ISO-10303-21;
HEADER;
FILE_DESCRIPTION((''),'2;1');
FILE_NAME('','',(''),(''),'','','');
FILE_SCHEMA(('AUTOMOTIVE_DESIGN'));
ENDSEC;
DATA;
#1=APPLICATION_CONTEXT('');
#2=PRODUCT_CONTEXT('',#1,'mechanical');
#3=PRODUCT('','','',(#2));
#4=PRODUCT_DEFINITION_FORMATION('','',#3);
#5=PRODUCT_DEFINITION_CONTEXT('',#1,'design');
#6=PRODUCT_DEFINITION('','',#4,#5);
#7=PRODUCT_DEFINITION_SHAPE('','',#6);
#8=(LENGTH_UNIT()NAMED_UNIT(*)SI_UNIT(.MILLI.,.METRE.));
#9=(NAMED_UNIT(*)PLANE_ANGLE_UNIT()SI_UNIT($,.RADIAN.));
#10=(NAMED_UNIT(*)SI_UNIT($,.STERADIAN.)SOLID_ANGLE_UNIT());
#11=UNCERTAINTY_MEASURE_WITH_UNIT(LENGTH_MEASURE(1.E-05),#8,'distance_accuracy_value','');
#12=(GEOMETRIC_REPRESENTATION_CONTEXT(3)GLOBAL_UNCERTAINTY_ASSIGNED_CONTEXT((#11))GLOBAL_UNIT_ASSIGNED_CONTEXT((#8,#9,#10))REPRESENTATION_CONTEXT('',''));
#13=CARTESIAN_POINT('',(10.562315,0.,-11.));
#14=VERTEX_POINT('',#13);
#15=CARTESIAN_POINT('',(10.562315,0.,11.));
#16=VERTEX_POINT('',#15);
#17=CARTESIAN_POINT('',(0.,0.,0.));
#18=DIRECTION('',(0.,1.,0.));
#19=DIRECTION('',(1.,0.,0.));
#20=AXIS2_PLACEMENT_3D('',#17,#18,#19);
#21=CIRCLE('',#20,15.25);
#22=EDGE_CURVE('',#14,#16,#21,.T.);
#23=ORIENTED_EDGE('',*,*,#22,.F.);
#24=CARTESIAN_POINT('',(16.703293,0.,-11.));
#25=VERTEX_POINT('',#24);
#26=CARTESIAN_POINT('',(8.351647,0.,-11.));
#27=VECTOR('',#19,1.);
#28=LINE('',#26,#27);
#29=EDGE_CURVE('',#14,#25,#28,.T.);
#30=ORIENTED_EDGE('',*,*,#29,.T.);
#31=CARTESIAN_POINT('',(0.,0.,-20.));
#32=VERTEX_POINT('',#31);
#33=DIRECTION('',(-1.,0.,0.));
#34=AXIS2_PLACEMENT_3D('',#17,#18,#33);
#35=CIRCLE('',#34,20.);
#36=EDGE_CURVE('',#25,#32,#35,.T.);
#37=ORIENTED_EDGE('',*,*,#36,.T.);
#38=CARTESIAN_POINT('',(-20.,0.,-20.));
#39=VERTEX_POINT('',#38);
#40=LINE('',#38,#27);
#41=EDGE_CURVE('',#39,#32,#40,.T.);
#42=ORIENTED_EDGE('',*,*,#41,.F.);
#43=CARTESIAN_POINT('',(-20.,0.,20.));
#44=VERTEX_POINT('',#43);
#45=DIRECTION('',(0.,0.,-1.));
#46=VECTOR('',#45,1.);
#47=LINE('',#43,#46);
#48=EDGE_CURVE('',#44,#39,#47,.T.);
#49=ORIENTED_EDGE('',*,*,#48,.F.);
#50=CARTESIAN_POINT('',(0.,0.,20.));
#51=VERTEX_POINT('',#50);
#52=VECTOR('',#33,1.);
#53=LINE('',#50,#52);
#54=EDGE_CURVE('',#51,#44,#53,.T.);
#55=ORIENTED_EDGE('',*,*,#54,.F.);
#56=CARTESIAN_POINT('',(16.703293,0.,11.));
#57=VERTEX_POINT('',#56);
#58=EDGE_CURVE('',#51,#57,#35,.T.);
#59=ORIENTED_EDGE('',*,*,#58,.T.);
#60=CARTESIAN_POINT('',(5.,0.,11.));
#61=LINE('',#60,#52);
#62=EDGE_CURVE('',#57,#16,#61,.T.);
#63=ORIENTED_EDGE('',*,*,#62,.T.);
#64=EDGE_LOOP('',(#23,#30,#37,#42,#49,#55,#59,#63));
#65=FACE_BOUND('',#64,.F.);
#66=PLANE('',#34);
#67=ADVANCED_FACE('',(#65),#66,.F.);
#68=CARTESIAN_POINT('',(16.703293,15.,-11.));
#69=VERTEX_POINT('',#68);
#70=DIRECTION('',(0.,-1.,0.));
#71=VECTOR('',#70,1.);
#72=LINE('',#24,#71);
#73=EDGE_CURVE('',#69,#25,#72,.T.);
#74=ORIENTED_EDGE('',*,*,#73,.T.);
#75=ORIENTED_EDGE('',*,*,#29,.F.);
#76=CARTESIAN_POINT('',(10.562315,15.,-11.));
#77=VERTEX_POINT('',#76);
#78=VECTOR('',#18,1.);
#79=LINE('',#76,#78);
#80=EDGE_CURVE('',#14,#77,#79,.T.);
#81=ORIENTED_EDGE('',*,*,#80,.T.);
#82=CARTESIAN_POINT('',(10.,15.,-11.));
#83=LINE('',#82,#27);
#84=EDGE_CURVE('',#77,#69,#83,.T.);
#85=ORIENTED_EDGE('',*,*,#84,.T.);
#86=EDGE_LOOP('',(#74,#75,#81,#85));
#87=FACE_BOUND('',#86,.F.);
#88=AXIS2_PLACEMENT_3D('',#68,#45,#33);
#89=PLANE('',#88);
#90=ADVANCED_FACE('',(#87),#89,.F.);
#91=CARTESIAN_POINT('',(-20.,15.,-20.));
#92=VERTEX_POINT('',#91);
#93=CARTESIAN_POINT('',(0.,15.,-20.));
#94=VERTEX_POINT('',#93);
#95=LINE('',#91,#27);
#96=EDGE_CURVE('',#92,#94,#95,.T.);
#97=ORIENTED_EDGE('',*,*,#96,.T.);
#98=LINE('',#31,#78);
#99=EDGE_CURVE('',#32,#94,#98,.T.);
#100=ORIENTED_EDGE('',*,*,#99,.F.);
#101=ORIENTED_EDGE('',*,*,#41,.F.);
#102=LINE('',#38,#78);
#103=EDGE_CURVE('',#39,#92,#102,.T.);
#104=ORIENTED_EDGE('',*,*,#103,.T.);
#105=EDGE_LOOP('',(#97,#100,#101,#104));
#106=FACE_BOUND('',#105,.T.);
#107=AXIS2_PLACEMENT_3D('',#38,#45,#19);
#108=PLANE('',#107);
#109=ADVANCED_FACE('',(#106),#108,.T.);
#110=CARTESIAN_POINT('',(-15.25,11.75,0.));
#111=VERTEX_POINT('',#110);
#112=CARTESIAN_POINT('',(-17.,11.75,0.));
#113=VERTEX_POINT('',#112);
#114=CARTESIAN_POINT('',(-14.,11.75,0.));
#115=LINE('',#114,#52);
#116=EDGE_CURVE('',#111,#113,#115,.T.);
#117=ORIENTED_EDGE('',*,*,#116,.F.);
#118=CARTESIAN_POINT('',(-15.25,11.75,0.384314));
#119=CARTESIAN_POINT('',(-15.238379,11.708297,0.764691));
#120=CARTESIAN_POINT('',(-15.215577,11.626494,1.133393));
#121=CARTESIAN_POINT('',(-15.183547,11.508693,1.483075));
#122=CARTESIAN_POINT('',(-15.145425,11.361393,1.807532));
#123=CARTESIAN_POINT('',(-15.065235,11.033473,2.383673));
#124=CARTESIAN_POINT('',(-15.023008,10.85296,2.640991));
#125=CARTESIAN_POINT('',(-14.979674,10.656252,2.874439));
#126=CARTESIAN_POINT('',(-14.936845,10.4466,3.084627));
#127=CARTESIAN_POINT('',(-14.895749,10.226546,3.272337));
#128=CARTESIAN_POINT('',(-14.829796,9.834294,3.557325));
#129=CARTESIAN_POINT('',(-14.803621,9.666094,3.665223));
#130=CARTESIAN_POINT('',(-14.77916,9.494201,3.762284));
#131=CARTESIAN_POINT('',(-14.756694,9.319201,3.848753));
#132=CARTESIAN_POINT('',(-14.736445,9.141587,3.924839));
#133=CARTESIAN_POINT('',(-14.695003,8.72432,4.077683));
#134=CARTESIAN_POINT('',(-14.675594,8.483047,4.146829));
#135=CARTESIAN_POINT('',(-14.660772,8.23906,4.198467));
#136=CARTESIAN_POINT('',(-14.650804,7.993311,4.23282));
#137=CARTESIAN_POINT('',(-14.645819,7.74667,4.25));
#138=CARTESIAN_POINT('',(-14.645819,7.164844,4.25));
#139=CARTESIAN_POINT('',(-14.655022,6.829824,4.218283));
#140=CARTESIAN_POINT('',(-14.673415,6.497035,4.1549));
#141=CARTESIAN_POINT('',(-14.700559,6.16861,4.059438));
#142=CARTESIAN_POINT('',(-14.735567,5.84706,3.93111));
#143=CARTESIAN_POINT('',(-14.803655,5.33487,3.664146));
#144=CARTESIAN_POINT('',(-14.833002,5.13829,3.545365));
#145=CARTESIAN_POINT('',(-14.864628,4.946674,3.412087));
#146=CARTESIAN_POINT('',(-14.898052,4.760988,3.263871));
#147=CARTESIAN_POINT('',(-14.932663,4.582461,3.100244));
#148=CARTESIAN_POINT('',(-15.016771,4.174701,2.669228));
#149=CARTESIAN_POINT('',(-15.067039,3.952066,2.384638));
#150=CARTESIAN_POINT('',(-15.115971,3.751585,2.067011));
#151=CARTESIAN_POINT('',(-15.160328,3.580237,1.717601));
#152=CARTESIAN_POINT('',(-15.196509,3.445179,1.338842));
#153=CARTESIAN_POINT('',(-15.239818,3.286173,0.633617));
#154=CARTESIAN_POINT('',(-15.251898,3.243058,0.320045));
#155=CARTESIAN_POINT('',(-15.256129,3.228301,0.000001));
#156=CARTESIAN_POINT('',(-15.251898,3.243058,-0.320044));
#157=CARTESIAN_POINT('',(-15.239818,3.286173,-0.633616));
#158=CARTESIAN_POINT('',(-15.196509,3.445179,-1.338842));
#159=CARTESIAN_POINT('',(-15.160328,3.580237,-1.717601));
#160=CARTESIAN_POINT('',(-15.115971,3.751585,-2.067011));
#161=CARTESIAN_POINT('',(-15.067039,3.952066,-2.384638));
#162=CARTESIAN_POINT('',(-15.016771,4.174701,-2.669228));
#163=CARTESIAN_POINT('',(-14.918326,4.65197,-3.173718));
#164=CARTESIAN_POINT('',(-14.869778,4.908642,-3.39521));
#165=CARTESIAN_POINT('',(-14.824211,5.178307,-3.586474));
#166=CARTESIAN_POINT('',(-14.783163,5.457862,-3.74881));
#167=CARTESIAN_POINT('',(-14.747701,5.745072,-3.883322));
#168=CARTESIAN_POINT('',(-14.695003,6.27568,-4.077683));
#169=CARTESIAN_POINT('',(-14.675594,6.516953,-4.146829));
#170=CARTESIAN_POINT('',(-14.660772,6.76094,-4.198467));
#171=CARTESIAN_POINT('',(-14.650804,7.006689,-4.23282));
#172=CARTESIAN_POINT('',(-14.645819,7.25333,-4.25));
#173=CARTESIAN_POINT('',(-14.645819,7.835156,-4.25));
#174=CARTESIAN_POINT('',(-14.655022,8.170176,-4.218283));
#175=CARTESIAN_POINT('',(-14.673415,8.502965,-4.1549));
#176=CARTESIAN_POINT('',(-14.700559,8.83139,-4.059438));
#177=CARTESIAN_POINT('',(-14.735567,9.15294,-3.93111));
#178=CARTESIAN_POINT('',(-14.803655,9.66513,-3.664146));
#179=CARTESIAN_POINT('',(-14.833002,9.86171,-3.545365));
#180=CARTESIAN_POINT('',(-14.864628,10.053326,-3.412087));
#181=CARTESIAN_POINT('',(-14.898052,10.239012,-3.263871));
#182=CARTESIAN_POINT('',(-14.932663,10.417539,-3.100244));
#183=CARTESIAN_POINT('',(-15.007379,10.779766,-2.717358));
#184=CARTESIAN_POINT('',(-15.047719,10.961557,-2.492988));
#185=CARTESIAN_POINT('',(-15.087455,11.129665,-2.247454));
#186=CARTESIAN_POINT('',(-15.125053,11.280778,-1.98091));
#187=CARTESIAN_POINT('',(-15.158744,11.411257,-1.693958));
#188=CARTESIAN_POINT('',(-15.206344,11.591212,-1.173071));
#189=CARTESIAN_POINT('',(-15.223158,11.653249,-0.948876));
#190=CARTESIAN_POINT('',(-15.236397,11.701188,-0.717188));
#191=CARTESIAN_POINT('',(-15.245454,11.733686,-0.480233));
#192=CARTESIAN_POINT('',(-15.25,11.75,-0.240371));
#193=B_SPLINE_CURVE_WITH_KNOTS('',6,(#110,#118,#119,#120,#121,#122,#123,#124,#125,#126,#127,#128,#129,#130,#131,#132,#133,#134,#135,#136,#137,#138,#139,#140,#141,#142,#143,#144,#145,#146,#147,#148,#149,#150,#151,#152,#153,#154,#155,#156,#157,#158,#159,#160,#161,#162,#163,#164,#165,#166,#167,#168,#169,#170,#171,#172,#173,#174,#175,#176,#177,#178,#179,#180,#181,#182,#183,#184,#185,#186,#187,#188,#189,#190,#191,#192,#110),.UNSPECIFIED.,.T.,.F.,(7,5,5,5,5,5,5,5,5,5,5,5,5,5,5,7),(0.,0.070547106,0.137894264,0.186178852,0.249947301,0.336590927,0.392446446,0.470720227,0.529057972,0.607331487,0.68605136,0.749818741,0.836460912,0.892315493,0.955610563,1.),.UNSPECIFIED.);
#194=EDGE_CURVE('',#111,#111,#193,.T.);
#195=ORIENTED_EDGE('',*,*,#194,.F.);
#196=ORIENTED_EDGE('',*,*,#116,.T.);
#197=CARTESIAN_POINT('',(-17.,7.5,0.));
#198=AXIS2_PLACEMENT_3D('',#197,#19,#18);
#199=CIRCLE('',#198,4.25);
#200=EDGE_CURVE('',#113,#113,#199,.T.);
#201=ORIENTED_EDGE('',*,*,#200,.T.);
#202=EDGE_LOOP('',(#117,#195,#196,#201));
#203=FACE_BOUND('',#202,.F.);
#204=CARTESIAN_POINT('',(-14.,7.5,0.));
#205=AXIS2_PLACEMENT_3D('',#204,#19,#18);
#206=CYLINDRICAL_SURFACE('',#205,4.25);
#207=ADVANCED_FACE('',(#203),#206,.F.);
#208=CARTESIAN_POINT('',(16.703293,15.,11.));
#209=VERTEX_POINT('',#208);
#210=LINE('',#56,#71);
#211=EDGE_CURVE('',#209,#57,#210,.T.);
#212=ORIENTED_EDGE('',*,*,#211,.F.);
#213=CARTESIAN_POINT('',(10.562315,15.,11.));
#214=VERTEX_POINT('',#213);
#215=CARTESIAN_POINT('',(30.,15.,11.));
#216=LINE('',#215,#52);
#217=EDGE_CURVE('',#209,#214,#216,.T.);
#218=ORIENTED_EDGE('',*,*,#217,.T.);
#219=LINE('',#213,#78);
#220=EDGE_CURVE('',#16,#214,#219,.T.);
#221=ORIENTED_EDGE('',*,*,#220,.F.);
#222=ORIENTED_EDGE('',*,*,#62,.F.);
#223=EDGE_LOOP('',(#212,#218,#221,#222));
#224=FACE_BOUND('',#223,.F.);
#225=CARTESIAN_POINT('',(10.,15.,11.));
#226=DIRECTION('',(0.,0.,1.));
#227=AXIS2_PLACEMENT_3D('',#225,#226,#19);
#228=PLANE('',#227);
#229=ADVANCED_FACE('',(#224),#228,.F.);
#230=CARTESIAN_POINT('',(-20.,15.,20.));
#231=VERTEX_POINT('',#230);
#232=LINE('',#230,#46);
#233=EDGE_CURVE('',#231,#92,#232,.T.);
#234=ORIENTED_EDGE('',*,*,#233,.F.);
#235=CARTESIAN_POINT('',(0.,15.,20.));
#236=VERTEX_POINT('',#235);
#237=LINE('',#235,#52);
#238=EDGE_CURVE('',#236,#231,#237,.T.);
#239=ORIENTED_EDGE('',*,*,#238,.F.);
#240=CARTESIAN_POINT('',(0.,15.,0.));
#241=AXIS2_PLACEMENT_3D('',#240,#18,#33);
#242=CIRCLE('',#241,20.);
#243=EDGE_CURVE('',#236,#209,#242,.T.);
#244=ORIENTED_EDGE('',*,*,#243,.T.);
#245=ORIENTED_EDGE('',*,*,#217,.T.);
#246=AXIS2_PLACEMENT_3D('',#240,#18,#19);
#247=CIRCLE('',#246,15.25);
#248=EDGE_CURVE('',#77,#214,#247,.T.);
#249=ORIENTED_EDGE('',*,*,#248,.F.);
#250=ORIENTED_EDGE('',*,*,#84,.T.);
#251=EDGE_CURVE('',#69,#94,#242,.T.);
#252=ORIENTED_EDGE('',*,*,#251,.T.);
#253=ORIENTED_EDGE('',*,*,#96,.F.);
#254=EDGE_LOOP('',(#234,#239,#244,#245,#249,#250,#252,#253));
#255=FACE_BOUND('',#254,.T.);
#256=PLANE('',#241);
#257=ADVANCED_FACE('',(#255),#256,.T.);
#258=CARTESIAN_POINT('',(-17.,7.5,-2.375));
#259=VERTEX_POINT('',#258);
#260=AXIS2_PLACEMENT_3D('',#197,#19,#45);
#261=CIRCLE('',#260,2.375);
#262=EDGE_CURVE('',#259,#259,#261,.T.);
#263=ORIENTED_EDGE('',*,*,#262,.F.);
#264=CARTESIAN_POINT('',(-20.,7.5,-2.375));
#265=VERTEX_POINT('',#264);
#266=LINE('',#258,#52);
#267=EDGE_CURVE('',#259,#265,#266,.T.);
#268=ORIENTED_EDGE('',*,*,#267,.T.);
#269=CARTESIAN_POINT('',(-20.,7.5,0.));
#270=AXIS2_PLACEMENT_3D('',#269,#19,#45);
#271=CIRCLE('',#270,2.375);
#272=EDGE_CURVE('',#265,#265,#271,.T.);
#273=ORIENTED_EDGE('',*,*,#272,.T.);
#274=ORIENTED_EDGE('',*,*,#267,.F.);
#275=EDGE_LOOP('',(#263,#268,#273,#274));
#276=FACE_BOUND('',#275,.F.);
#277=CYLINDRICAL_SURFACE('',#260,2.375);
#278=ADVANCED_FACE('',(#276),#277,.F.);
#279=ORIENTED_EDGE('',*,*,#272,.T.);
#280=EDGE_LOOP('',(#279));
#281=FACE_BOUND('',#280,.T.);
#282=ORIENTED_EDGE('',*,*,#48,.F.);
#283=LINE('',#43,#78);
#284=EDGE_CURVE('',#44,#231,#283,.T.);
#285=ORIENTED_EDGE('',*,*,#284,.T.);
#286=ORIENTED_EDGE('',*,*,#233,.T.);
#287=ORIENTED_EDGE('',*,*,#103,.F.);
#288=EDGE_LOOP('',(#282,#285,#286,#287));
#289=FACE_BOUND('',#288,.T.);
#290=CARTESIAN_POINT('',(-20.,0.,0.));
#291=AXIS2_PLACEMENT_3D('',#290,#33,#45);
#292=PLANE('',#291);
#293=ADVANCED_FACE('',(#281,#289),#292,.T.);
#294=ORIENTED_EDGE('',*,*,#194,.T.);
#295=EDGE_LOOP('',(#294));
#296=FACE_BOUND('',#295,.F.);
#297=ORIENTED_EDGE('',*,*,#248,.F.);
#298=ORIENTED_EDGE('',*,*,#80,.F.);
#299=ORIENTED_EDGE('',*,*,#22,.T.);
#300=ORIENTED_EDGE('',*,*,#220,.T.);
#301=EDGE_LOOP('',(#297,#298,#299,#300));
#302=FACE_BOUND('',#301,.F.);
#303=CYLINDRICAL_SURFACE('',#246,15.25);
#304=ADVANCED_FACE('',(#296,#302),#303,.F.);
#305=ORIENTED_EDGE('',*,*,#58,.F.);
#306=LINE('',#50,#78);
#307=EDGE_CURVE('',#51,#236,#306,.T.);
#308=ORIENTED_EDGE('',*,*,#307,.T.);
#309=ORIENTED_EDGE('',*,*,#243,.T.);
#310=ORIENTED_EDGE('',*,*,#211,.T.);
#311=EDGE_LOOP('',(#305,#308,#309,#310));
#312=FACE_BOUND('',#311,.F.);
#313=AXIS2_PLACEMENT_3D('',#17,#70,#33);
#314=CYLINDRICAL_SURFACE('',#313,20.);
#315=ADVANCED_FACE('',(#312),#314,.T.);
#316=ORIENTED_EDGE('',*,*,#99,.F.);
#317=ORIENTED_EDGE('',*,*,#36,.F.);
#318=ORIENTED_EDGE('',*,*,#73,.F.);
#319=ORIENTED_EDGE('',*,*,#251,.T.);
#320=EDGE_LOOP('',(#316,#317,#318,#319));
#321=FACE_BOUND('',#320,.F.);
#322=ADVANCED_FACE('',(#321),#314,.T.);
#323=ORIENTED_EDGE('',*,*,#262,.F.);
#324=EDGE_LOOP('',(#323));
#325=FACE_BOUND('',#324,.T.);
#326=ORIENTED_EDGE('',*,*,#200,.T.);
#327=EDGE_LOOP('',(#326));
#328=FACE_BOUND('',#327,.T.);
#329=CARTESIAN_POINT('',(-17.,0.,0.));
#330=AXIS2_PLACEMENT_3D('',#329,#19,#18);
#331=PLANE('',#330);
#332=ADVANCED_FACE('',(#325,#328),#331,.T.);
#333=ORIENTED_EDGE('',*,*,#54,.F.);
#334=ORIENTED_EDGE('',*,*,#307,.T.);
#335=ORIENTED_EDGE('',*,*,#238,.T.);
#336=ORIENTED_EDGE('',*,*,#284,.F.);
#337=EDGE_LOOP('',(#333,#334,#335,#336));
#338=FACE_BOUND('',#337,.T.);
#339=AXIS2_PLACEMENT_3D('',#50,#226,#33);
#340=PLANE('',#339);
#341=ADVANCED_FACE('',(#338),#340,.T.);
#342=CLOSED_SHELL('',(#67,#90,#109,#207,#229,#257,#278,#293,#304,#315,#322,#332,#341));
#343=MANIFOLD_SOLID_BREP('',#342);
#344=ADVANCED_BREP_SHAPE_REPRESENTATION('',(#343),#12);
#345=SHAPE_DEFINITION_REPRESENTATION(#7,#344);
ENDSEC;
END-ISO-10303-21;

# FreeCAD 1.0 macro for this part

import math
import FreeCAD as App
import Part
import Sketcher
Q = App.Units.Quantity


def add_polygon(sketch, points):
    """Adds a closed chain of lines whose ends are joined by coincident constraints."""
    first, n = sketch.GeometryCount, len(points)
    for a, b in zip(points, points[1:] + points[:1]):
        sketch.addGeometry(Part.LineSegment(App.Vector(*a, 0), App.Vector(*b, 0)), False)
    for i in range(n):
        sketch.addConstraint(Sketcher.Constraint("Coincident", first + i, 2, first + (i + 1) % n, 1))

doc = App.newDocument("Part")
body = doc.addObject("PartDesign::Body", "Body")

sketch1 = body.newObject("Sketcher::SketchObject", "Sketch")
sketch1.AttachmentSupport = (doc.getObject("XZ_Plane"), [""])
sketch1.MapMode = "FlatFace"
sketch1.addGeometry(Part.LineSegment(App.Vector(-20, -20, 0), App.Vector(-20, 20, 0)), False)
sketch1.addGeometry(Part.LineSegment(App.Vector(-20, 20, 0), App.Vector(0, 20, 0)), False)
sketch1.addGeometry(Part.ArcOfCircle(Part.Circle(App.Vector(0, 0, 0), App.Vector(0, 0, 1), 20), math.radians(-90), math.radians(90)), False)
sketch1.addGeometry(Part.LineSegment(App.Vector(0, -20, 0), App.Vector(-20, -20, 0)), False)
sketch1.addConstraint(Sketcher.Constraint("Coincident", 0, 2, 1, 1))
sketch1.addConstraint(Sketcher.Constraint("Tangent", 1, 2, 2, 2))
sketch1.addConstraint(Sketcher.Constraint("Tangent", 2, 1, 3, 1))
sketch1.addConstraint(Sketcher.Constraint("Coincident", 3, 2, 0, 1))
sketch1.addConstraint(Sketcher.Constraint("Vertical", 0))
sketch1.addConstraint(Sketcher.Constraint("Horizontal", 1))
sketch1.addConstraint(Sketcher.Constraint("Horizontal", 3))
sketch1.addConstraint(Sketcher.Constraint("Coincident", 2, 3, -1, 1))
sketch1.addConstraint(Sketcher.Constraint("Radius", 2, Q("20 mm")))
sketch1.addConstraint(Sketcher.Constraint("DistanceX", 1, 1, 1, 2, Q("20 mm")))
pad1 = body.newObject("PartDesign::Pad", "Pad")
pad1.Profile = sketch1
pad1.Length = 15
pad1.Reversed = True

sketch2 = body.newObject("Sketcher::SketchObject", "Sketch001")
sketch2.AttachmentSupport = (doc.getObject("XZ_Plane"), [""])
sketch2.MapMode = "FlatFace"
sketch2.AttachmentOffset = App.Placement(App.Vector(0, 0, -15), App.Rotation())
sketch2.addGeometry(Part.Circle(App.Vector(0, 0, 0), App.Vector(0, 0, 1), 15.25), False)
sketch2.addConstraint(Sketcher.Constraint("Coincident", 0, 3, -1, 1))
sketch2.addConstraint(Sketcher.Constraint("Diameter", 0, Q("30.5 mm")))
pocket1 = body.newObject("PartDesign::Pocket", "Pocket")
pocket1.Profile = sketch2
pocket1.Type = "UpToFirst"
pocket1.Reversed = True

sketch3 = body.newObject("Sketcher::SketchObject", "Sketch002")
sketch3.AttachmentSupport = (doc.getObject("XZ_Plane"), [""])
sketch3.MapMode = "FlatFace"
sketch3.AttachmentOffset = App.Placement(App.Vector(0, 0, -15), App.Rotation())
add_polygon(sketch3, [(10, -11), (10, 11), (30, 11), (30, -11)])
sketch3.addConstraint(Sketcher.Constraint("Vertical", 0))
sketch3.addConstraint(Sketcher.Constraint("Horizontal", 1))
sketch3.addConstraint(Sketcher.Constraint("Vertical", 2))
sketch3.addConstraint(Sketcher.Constraint("Horizontal", 3))
sketch3.addConstraint(Sketcher.Constraint("DistanceX", 1, 1, 1, 2, Q("20 mm")))
sketch3.addConstraint(Sketcher.Constraint("DistanceY", 0, 1, 0, 2, Q("22 mm")))
sketch3.addConstraint(Sketcher.Constraint("DistanceX", -1, 1, 0, 2, Q("10 mm")))
sketch3.addConstraint(Sketcher.Constraint("DistanceY", -1, 1, 0, 2, Q("11 mm")))
pocket2 = body.newObject("PartDesign::Pocket", "Pocket001")
pocket2.Profile = sketch3
pocket2.Type = "UpToFirst"
pocket2.Reversed = True

sketch4 = body.newObject("Sketcher::SketchObject", "Sketch003")
sketch4.AttachmentSupport = (doc.getObject("YZ_Plane"), [""])
sketch4.MapMode = "FlatFace"
sketch4.AttachmentOffset = App.Placement(App.Vector(0, 0, -14), App.Rotation())
sketch4.addGeometry(Part.Circle(App.Vector(7.5, 0, 0), App.Vector(0, 0, 1), 4.25), False)
sketch4.addConstraint(Sketcher.Constraint("PointOnObject", 0, 3, -1))
sketch4.addConstraint(Sketcher.Constraint("Diameter", 0, Q("8.5 mm")))
sketch4.addConstraint(Sketcher.Constraint("DistanceX", -1, 1, 0, 3, Q("7.5 mm")))
pocket3 = body.newObject("PartDesign::Pocket", "Pocket002")
pocket3.Profile = sketch4
pocket3.Length = 3

sketch5 = body.newObject("Sketcher::SketchObject", "Sketch004")
sketch5.AttachmentSupport = (doc.getObject("YZ_Plane"), [""])
sketch5.MapMode = "FlatFace"
sketch5.AttachmentOffset = App.Placement(App.Vector(0, 0, -17), App.Rotation())
sketch5.addGeometry(Part.Circle(App.Vector(7.5, 0, 0), App.Vector(0, 0, 1), 2.375), False)
sketch5.addConstraint(Sketcher.Constraint("PointOnObject", 0, 3, -1))
sketch5.addConstraint(Sketcher.Constraint("Diameter", 0, Q("4.75 mm")))
sketch5.addConstraint(Sketcher.Constraint("DistanceX", -1, 1, 0, 3, Q("7.5 mm")))
pocket4 = body.newObject("PartDesign::Pocket", "Pocket003")
pocket4.Profile = sketch5
pocket4.Type = "UpToFirst"

doc.recompute()
